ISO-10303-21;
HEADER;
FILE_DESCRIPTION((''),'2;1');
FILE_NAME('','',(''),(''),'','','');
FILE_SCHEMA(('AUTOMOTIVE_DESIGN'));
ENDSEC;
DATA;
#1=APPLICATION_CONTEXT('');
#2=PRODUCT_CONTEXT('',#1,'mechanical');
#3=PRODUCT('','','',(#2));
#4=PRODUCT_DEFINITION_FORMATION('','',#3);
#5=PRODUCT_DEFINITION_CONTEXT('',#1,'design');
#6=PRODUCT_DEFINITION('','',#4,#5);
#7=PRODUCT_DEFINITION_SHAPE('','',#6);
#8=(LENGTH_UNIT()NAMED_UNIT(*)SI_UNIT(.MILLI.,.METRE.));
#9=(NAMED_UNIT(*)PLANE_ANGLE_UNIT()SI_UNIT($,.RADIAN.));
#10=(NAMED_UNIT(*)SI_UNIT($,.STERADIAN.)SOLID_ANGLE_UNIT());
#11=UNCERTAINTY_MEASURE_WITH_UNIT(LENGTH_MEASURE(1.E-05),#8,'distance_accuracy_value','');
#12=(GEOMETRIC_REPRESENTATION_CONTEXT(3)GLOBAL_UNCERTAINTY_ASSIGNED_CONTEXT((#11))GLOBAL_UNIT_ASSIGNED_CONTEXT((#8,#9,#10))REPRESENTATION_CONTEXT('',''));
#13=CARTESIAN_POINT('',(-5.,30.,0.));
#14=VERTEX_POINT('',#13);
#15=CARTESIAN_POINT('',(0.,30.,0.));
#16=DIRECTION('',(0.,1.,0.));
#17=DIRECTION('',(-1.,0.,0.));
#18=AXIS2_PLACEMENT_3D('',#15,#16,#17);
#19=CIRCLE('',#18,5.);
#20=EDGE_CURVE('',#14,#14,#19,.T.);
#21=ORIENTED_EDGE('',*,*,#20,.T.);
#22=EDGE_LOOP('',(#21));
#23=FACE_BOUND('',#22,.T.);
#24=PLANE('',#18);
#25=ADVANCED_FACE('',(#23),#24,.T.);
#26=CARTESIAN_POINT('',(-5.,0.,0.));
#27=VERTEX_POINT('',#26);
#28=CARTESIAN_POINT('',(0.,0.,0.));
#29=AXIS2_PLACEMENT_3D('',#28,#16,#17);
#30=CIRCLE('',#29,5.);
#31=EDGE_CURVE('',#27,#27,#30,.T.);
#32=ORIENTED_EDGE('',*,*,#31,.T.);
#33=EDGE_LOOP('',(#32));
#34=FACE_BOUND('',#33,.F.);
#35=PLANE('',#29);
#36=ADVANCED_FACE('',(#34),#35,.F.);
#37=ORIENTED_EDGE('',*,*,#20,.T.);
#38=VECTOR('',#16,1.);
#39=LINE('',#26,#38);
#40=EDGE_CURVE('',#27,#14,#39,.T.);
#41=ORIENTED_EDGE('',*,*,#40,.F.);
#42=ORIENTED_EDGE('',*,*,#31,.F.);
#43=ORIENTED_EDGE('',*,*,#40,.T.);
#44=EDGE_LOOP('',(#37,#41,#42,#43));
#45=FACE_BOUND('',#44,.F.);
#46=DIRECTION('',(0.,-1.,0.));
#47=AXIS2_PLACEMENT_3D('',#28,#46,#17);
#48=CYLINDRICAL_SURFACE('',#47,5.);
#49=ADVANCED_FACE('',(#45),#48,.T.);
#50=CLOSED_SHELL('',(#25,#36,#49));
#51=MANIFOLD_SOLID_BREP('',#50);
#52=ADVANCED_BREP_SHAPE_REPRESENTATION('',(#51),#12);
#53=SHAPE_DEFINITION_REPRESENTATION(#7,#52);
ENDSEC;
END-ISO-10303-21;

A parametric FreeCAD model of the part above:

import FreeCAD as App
import Part
import Sketcher

doc = App.newDocument("Part")
body = doc.addObject("PartDesign::Body", "Body")

# Sketch on XZ plane
sketch1 = body.newObject("Sketcher::SketchObject", "Sketch")
sketch1.AttachmentSupport = (doc.getObject("XZ_Plane"), [""])
sketch1.MapMode = "FlatFace"
sketch1.addGeometry(Part.Circle(App.Vector(0, 0, 0), App.Vector(0, 0, 1), 5), False)
sketch1.addConstraint([
    Sketcher.Constraint("Coincident", 0, 3, -1, 1),
    Sketcher.Constraint("Diameter", 0, 10.0),
])
pad1 = body.newObject("PartDesign::Pad", "Pad")
pad1.Profile = sketch1
pad1.Length = 30
pad1.Reversed = True

doc.recompute()
